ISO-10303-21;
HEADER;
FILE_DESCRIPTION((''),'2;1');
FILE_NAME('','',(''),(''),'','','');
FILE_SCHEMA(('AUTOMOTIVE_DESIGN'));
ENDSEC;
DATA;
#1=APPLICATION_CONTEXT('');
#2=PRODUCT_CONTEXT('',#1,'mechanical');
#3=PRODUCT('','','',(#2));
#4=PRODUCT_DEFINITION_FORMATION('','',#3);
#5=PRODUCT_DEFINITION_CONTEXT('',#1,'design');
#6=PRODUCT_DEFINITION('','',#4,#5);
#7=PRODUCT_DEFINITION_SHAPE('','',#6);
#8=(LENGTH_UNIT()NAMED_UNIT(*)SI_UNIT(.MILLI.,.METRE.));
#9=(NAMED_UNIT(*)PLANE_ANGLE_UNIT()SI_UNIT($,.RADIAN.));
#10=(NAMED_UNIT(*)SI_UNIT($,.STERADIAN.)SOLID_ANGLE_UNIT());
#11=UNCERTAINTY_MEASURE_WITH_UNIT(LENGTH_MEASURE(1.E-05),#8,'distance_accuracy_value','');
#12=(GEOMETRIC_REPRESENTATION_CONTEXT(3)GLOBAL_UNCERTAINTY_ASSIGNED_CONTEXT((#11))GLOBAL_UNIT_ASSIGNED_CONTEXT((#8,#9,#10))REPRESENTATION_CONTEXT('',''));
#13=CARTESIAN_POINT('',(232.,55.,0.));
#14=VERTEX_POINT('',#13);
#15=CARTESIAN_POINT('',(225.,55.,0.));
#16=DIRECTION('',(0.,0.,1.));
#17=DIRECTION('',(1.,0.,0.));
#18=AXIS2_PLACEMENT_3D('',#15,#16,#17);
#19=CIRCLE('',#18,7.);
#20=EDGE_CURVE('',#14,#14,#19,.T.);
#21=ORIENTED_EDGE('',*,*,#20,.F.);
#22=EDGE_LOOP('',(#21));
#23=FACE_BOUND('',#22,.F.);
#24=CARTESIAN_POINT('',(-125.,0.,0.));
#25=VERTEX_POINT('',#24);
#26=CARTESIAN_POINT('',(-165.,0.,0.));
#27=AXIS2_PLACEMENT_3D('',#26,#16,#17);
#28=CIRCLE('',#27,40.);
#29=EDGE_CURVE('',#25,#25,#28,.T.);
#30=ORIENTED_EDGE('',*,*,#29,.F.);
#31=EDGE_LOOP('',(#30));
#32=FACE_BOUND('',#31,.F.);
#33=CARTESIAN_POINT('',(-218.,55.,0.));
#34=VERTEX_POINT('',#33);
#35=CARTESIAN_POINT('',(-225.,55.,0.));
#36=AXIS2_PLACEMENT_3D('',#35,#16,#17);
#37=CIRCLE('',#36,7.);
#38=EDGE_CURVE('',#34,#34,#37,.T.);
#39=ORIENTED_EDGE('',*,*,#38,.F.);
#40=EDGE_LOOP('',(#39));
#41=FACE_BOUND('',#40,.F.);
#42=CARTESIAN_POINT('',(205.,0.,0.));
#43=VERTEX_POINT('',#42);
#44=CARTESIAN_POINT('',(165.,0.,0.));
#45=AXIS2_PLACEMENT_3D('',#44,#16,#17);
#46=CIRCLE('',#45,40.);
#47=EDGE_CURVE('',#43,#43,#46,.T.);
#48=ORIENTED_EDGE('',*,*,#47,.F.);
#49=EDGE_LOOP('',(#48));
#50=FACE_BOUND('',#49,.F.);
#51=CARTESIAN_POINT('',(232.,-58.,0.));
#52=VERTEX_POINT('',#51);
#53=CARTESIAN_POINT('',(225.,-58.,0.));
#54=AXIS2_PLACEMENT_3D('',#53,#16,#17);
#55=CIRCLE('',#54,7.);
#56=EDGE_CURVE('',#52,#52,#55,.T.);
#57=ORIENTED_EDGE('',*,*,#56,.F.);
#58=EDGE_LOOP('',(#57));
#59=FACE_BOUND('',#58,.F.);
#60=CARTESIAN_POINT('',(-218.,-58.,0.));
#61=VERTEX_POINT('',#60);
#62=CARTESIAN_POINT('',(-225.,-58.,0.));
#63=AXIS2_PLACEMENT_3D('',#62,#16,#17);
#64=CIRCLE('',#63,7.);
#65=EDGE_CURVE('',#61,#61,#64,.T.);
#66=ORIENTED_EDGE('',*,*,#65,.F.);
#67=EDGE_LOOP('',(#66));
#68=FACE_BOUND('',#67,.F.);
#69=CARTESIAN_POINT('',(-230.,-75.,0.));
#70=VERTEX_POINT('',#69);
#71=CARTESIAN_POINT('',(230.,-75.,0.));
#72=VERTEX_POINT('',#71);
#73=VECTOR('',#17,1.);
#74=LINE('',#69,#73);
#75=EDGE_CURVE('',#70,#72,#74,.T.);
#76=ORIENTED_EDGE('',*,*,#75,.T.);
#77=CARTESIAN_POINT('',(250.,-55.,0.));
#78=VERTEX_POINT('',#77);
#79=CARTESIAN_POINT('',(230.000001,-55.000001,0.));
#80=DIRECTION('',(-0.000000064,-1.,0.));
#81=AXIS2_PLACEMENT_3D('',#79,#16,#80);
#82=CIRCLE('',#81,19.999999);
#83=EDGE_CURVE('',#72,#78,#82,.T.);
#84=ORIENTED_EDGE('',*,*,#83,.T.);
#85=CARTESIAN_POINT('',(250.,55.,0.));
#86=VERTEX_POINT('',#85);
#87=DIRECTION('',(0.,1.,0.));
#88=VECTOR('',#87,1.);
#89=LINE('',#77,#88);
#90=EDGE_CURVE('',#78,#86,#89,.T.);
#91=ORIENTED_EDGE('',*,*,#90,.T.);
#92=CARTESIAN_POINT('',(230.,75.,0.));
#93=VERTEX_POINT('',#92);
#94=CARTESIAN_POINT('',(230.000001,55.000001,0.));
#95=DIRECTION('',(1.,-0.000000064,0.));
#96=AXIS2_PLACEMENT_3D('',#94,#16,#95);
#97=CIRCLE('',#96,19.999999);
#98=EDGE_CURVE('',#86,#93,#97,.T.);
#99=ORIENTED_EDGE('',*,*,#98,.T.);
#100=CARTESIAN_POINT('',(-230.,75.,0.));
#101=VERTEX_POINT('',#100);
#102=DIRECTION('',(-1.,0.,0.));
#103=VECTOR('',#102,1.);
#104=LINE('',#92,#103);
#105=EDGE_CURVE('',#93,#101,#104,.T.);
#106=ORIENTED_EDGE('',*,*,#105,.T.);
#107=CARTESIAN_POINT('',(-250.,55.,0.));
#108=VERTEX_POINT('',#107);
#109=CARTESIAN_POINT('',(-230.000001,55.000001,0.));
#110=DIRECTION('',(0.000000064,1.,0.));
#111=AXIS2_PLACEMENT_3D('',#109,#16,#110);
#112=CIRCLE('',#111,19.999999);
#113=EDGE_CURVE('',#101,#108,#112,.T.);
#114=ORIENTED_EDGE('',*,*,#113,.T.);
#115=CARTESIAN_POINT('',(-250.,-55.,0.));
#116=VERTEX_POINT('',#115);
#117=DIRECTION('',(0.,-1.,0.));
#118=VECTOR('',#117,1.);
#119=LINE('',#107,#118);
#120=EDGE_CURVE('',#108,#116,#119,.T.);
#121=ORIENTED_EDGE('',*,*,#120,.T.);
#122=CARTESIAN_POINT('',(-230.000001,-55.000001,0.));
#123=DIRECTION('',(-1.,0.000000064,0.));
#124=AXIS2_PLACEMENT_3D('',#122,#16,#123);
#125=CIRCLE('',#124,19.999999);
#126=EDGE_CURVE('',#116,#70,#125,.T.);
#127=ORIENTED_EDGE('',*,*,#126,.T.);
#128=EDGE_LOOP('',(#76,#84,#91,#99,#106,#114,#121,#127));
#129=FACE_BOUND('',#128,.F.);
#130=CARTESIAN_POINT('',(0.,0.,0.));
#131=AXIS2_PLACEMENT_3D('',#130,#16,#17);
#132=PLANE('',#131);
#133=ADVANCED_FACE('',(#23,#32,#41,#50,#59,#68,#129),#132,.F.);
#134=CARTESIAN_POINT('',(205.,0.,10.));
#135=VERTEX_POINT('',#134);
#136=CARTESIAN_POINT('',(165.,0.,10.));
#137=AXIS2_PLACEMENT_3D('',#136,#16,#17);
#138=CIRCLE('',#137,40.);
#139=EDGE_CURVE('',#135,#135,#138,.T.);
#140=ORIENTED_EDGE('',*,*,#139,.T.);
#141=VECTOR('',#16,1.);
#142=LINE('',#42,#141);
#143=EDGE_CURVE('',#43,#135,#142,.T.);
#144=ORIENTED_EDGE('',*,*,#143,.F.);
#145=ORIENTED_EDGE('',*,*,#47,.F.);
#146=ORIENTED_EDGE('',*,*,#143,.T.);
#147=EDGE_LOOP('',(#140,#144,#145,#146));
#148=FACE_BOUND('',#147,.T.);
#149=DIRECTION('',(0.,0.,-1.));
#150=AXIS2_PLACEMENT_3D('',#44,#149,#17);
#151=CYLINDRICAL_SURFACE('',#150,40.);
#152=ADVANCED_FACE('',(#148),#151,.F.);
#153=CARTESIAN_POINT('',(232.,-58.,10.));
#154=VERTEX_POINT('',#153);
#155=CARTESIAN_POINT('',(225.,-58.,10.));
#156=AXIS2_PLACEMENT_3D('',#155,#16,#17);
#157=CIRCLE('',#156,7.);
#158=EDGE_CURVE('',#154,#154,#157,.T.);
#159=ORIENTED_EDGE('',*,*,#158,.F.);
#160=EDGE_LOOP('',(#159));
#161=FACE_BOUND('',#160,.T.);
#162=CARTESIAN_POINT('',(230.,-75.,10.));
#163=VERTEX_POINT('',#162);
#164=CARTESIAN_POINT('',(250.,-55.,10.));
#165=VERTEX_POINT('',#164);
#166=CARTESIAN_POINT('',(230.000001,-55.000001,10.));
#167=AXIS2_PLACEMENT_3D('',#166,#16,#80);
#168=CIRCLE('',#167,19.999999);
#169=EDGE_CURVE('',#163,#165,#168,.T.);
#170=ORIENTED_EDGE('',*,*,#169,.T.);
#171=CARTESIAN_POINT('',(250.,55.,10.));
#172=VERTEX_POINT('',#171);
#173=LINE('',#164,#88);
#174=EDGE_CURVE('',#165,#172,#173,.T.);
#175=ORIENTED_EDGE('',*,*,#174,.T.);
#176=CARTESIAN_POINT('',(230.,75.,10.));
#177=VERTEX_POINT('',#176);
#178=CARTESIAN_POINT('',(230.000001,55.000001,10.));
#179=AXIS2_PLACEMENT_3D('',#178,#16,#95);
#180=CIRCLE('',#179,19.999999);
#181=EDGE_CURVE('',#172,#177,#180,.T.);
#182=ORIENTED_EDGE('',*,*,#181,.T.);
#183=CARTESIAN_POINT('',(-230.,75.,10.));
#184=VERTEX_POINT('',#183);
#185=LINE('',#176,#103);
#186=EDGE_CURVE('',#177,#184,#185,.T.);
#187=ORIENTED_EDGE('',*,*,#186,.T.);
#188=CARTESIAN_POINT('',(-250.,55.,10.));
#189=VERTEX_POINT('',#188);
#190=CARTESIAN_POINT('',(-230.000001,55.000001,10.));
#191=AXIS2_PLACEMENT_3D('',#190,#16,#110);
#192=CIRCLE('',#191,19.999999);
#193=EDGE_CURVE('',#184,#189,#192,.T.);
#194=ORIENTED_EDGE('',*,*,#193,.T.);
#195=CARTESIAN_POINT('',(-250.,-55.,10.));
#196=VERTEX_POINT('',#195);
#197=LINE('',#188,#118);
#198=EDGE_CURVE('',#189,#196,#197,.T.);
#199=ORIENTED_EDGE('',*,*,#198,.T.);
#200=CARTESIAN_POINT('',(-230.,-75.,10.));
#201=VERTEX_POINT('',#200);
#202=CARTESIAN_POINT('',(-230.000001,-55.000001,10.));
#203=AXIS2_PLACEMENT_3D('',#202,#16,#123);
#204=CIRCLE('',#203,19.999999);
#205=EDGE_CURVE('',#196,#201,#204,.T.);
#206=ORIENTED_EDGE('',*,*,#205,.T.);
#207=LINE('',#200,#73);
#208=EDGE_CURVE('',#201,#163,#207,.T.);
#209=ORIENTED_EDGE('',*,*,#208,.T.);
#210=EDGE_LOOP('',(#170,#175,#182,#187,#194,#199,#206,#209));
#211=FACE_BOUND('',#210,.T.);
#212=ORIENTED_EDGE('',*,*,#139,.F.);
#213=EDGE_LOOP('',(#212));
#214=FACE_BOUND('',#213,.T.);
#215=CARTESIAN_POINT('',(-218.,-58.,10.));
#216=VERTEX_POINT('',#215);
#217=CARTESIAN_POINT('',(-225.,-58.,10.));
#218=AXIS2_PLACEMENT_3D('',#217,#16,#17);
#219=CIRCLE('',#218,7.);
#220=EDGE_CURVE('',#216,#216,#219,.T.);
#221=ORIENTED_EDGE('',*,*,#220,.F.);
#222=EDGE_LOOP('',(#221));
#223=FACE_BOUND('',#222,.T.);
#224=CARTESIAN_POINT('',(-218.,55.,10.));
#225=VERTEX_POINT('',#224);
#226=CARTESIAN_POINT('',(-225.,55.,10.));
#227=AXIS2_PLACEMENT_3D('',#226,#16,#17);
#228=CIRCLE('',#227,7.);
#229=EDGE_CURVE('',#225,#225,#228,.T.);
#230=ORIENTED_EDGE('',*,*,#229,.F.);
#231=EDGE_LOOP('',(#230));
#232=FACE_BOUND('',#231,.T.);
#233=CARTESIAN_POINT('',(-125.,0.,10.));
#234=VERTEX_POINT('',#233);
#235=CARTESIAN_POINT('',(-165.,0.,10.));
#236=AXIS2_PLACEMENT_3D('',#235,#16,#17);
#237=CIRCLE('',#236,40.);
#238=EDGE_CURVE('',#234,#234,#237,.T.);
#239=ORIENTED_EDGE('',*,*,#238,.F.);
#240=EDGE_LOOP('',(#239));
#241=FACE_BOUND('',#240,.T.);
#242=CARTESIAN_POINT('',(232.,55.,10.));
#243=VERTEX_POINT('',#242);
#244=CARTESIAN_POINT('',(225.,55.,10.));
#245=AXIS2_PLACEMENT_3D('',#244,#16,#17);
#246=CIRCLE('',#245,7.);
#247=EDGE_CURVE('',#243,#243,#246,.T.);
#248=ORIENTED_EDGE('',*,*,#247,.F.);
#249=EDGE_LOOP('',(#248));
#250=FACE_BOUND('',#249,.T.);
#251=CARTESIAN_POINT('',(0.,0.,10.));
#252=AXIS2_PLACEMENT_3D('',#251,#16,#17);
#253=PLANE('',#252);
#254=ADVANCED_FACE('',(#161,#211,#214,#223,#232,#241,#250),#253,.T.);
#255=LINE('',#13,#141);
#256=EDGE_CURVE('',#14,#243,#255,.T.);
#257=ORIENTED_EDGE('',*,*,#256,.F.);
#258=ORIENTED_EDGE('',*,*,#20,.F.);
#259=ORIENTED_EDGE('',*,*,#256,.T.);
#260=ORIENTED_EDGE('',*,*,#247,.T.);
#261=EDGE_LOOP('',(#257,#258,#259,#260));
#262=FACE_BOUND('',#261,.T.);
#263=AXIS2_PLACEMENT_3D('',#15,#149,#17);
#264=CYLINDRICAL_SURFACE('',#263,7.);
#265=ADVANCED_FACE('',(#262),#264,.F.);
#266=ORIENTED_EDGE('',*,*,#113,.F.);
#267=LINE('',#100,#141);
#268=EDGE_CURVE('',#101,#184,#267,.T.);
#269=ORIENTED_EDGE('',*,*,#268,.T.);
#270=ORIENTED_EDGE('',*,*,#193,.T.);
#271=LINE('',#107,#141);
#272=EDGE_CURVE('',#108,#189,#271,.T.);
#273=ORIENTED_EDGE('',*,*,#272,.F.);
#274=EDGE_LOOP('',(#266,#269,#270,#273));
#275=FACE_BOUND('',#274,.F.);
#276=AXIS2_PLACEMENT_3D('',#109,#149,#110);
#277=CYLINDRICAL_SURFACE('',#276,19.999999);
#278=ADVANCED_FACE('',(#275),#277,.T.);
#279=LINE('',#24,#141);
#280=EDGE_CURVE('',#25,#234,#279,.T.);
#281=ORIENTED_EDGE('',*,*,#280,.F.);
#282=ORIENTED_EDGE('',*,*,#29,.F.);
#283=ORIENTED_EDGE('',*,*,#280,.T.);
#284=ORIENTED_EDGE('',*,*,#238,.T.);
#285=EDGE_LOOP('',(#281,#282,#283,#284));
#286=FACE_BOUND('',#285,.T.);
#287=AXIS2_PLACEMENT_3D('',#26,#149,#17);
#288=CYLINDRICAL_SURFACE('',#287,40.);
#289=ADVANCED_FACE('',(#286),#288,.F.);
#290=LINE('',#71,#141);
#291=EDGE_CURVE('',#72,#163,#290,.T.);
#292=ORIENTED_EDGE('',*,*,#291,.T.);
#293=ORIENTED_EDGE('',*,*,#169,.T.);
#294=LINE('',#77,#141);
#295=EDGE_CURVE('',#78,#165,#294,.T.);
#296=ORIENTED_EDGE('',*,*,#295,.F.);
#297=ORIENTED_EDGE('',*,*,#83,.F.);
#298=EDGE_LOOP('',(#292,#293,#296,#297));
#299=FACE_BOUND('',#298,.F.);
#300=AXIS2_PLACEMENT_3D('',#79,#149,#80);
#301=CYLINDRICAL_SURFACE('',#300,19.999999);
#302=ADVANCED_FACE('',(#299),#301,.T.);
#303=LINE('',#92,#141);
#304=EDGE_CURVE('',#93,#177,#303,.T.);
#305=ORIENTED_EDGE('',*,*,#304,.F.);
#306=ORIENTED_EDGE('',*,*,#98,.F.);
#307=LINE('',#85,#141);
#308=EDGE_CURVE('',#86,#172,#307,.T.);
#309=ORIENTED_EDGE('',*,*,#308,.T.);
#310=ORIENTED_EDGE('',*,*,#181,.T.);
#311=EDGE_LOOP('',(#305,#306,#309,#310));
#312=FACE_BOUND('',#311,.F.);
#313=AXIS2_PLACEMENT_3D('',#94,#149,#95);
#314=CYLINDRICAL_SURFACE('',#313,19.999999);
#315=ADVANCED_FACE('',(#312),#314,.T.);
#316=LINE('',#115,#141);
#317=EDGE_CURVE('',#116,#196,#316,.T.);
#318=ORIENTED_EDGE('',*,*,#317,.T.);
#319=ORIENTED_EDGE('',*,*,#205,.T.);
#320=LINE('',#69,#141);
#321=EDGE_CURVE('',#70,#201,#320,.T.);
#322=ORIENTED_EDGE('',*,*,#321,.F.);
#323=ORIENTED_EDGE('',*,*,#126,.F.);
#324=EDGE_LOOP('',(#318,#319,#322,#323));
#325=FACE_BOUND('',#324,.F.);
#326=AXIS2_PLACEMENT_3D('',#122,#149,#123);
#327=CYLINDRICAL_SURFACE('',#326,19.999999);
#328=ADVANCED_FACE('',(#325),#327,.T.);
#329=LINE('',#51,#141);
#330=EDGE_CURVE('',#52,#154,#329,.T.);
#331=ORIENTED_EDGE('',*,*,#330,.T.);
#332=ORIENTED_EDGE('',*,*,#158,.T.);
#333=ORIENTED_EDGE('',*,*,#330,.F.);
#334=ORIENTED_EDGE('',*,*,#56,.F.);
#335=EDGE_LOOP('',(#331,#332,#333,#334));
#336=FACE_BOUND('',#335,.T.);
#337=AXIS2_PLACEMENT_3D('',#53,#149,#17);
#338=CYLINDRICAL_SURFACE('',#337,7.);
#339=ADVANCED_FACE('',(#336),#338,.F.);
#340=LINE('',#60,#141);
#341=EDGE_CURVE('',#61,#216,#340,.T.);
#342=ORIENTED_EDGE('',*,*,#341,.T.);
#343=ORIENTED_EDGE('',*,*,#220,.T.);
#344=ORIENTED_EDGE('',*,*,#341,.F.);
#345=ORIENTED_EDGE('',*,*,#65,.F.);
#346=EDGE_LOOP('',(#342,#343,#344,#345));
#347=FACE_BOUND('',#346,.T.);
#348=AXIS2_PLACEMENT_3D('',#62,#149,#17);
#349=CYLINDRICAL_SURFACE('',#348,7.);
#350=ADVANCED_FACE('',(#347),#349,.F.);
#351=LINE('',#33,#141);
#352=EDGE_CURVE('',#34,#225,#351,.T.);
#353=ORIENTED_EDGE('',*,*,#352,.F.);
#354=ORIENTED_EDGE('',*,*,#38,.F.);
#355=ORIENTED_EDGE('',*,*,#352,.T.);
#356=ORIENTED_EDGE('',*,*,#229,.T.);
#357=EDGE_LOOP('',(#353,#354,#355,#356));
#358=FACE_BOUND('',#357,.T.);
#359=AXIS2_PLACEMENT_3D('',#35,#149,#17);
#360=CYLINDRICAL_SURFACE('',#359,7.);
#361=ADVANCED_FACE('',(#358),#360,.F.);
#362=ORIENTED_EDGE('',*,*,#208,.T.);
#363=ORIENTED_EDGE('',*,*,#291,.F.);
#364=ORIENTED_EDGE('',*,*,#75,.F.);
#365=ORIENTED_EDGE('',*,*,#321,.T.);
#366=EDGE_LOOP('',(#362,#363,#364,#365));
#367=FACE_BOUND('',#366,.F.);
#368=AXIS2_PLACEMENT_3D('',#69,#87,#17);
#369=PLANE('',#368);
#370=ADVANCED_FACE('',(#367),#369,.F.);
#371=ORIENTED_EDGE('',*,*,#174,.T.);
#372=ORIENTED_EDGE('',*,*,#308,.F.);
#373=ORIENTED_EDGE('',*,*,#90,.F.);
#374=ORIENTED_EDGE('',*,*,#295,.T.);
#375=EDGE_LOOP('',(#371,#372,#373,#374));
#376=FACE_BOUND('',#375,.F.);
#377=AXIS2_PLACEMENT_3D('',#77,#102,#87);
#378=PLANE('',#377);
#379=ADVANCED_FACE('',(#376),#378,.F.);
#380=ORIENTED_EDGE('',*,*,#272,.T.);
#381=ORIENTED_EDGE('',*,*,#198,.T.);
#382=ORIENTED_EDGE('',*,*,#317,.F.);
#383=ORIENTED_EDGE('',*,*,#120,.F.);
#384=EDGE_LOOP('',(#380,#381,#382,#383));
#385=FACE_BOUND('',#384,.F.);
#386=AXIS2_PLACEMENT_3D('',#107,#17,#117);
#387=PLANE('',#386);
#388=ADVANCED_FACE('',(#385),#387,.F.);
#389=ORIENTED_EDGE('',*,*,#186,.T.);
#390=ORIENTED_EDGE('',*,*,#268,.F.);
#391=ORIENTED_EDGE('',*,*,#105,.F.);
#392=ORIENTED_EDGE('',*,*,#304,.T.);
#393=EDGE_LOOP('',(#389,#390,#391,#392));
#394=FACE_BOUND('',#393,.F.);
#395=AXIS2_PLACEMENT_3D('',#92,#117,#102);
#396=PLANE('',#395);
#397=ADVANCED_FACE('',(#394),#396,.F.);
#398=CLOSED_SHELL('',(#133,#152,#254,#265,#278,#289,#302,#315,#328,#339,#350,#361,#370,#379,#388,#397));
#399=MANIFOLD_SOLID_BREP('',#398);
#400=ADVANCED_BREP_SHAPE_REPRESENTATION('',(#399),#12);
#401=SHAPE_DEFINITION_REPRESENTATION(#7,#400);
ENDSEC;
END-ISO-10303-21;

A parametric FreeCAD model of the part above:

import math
import FreeCAD as App
import Part
import Sketcher
from FreeCAD import Vector
Q = App.Units.Quantity

doc = App.newDocument("Part")
body = doc.addObject("PartDesign::Body", "Body")

sketch1 = doc.addObject("Sketcher::SketchObject", "Sketch")
body.addObject(sketch1)
sketch1.AttachmentSupport = (doc.XY_Plane, [""])
sketch1.MapMode = "FlatFace"
sketch1.addGeometry(Part.LineSegment(Vector(230, 75, 0), Vector(-230, 75, 0)), False)
sketch1.addGeometry(Part.ArcOfCircle(Part.Circle(Vector(-230.000001, 55.000001, 0), Vector(0, 0, 1), 19.999999), math.radians(89.999996), math.radians(180.000004)), False)
sketch1.addGeometry(Part.LineSegment(Vector(-250, 55, 0), Vector(-250, -55, 0)), False)
sketch1.addGeometry(Part.ArcOfCircle(Part.Circle(Vector(-230.000001, -55.000001, 0), Vector(0, 0, 1), 19.999999), math.radians(179.999996), math.radians(270.000004)), False)
sketch1.addGeometry(Part.LineSegment(Vector(-230, -75, 0), Vector(230, -75, 0)), False)
sketch1.addGeometry(Part.ArcOfCircle(Part.Circle(Vector(230.000001, -55.000001, 0), Vector(0, 0, 1), 19.999999), math.radians(-90.000004), math.radians(0.000004)), False)
sketch1.addGeometry(Part.LineSegment(Vector(250, -55, 0), Vector(250, 55, 0)), False)
sketch1.addGeometry(Part.ArcOfCircle(Part.Circle(Vector(230.000001, 55.000001, 0), Vector(0, 0, 1), 19.999999), math.radians(-0.000004), math.radians(90.000004)), False)
sketch1.addGeometry(Part.Circle(Vector(-225, -58, 0), Vector(0, 0, 1), 7), False)
sketch1.addGeometry(Part.Circle(Vector(225, -58, 0), Vector(0, 0, 1), 7), False)
sketch1.addGeometry(Part.Circle(Vector(-165, 0, 0), Vector(0, 0, 1), 40), False)
sketch1.addGeometry(Part.Circle(Vector(-225, 55, 0), Vector(0, 0, 1), 7), False)
sketch1.addGeometry(Part.Circle(Vector(165, 0, 0), Vector(0, 0, 1), 40), False)
sketch1.addGeometry(Part.Circle(Vector(225, 55, 0), Vector(0, 0, 1), 7), False)
sketch1.addConstraint(Sketcher.Constraint("Tangent", 0, 2, 1, 1))
sketch1.addConstraint(Sketcher.Constraint("Tangent", 1, 2, 2, 1))
sketch1.addConstraint(Sketcher.Constraint("Tangent", 2, 2, 3, 1))
sketch1.addConstraint(Sketcher.Constraint("Tangent", 3, 2, 4, 1))
sketch1.addConstraint(Sketcher.Constraint("Tangent", 4, 2, 5, 1))
sketch1.addConstraint(Sketcher.Constraint("Tangent", 5, 2, 6, 1))
sketch1.addConstraint(Sketcher.Constraint("Tangent", 6, 2, 7, 1))
sketch1.addConstraint(Sketcher.Constraint("Tangent", 7, 2, 0, 1))
sketch1.addConstraint(Sketcher.Constraint("Horizontal", 0))
sketch1.addConstraint(Sketcher.Constraint("Vertical", 2))
sketch1.addConstraint(Sketcher.Constraint("Horizontal", 4))
sketch1.addConstraint(Sketcher.Constraint("Vertical", 6))
sketch1.addConstraint(Sketcher.Constraint("Equal", 1, 3))
sketch1.addConstraint(Sketcher.Constraint("Equal", 3, 5))
sketch1.addConstraint(Sketcher.Constraint("Equal", 5, 7))
sketch1.addConstraint(Sketcher.Constraint("Equal", 8, 9))
sketch1.addConstraint(Sketcher.Constraint("Equal", 9, 11))
sketch1.addConstraint(Sketcher.Constraint("Equal", 10, 12))
sketch1.addConstraint(Sketcher.Constraint("Equal", 11, 13))
sketch1.addConstraint(Sketcher.Constraint("Symmetric", 1, 3, 5, 3, -1, 1))
sketch1.addConstraint(Sketcher.Constraint("Symmetric", 10, 3, 12, 3, -1, 1))
sketch1.addConstraint(Sketcher.Constraint("Symmetric", 8, 3, 9, 3, -2))
sketch1.addConstraint(Sketcher.Constraint("Symmetric", 11, 3, 13, 3, -2))
sketch1.addConstraint(Sketcher.Constraint("PointOnObject", 10, 3, -1))
sketch1.addConstraint(Sketcher.Constraint("Horizontal", 7, 3, 11, 3))
sketch1.addConstraint(Sketcher.Constraint("Vertical", 8, 3, 11, 3))
sketch1.addConstraint(Sketcher.Constraint("Diameter", 8, Q("14 mm")))
sketch1.addConstraint(Sketcher.Constraint("Diameter", 10, Q("80 mm")))
sketch1.addConstraint(Sketcher.Constraint("Radius", 1, Q("19.999999 mm")))
sketch1.addConstraint(Sketcher.Constraint("DistanceX", 0, 2, 0, 1, Q("460 mm")))
sketch1.addConstraint(Sketcher.Constraint("DistanceY", 2, 2, 2, 1, Q("110 mm")))
sketch1.addConstraint(Sketcher.Constraint("DistanceX", 8, 3, -1, 1, Q("225 mm")))
sketch1.addConstraint(Sketcher.Constraint("DistanceY", 8, 3, -1, 1, Q("58 mm")))
sketch1.addConstraint(Sketcher.Constraint("DistanceX", 10, 3, -1, 1, Q("165 mm")))
pad1 = doc.addObject("PartDesign::Pad", "Pad")
body.addObject(pad1)
pad1.Profile = sketch1
pad1.Length = 10

doc.recompute()
